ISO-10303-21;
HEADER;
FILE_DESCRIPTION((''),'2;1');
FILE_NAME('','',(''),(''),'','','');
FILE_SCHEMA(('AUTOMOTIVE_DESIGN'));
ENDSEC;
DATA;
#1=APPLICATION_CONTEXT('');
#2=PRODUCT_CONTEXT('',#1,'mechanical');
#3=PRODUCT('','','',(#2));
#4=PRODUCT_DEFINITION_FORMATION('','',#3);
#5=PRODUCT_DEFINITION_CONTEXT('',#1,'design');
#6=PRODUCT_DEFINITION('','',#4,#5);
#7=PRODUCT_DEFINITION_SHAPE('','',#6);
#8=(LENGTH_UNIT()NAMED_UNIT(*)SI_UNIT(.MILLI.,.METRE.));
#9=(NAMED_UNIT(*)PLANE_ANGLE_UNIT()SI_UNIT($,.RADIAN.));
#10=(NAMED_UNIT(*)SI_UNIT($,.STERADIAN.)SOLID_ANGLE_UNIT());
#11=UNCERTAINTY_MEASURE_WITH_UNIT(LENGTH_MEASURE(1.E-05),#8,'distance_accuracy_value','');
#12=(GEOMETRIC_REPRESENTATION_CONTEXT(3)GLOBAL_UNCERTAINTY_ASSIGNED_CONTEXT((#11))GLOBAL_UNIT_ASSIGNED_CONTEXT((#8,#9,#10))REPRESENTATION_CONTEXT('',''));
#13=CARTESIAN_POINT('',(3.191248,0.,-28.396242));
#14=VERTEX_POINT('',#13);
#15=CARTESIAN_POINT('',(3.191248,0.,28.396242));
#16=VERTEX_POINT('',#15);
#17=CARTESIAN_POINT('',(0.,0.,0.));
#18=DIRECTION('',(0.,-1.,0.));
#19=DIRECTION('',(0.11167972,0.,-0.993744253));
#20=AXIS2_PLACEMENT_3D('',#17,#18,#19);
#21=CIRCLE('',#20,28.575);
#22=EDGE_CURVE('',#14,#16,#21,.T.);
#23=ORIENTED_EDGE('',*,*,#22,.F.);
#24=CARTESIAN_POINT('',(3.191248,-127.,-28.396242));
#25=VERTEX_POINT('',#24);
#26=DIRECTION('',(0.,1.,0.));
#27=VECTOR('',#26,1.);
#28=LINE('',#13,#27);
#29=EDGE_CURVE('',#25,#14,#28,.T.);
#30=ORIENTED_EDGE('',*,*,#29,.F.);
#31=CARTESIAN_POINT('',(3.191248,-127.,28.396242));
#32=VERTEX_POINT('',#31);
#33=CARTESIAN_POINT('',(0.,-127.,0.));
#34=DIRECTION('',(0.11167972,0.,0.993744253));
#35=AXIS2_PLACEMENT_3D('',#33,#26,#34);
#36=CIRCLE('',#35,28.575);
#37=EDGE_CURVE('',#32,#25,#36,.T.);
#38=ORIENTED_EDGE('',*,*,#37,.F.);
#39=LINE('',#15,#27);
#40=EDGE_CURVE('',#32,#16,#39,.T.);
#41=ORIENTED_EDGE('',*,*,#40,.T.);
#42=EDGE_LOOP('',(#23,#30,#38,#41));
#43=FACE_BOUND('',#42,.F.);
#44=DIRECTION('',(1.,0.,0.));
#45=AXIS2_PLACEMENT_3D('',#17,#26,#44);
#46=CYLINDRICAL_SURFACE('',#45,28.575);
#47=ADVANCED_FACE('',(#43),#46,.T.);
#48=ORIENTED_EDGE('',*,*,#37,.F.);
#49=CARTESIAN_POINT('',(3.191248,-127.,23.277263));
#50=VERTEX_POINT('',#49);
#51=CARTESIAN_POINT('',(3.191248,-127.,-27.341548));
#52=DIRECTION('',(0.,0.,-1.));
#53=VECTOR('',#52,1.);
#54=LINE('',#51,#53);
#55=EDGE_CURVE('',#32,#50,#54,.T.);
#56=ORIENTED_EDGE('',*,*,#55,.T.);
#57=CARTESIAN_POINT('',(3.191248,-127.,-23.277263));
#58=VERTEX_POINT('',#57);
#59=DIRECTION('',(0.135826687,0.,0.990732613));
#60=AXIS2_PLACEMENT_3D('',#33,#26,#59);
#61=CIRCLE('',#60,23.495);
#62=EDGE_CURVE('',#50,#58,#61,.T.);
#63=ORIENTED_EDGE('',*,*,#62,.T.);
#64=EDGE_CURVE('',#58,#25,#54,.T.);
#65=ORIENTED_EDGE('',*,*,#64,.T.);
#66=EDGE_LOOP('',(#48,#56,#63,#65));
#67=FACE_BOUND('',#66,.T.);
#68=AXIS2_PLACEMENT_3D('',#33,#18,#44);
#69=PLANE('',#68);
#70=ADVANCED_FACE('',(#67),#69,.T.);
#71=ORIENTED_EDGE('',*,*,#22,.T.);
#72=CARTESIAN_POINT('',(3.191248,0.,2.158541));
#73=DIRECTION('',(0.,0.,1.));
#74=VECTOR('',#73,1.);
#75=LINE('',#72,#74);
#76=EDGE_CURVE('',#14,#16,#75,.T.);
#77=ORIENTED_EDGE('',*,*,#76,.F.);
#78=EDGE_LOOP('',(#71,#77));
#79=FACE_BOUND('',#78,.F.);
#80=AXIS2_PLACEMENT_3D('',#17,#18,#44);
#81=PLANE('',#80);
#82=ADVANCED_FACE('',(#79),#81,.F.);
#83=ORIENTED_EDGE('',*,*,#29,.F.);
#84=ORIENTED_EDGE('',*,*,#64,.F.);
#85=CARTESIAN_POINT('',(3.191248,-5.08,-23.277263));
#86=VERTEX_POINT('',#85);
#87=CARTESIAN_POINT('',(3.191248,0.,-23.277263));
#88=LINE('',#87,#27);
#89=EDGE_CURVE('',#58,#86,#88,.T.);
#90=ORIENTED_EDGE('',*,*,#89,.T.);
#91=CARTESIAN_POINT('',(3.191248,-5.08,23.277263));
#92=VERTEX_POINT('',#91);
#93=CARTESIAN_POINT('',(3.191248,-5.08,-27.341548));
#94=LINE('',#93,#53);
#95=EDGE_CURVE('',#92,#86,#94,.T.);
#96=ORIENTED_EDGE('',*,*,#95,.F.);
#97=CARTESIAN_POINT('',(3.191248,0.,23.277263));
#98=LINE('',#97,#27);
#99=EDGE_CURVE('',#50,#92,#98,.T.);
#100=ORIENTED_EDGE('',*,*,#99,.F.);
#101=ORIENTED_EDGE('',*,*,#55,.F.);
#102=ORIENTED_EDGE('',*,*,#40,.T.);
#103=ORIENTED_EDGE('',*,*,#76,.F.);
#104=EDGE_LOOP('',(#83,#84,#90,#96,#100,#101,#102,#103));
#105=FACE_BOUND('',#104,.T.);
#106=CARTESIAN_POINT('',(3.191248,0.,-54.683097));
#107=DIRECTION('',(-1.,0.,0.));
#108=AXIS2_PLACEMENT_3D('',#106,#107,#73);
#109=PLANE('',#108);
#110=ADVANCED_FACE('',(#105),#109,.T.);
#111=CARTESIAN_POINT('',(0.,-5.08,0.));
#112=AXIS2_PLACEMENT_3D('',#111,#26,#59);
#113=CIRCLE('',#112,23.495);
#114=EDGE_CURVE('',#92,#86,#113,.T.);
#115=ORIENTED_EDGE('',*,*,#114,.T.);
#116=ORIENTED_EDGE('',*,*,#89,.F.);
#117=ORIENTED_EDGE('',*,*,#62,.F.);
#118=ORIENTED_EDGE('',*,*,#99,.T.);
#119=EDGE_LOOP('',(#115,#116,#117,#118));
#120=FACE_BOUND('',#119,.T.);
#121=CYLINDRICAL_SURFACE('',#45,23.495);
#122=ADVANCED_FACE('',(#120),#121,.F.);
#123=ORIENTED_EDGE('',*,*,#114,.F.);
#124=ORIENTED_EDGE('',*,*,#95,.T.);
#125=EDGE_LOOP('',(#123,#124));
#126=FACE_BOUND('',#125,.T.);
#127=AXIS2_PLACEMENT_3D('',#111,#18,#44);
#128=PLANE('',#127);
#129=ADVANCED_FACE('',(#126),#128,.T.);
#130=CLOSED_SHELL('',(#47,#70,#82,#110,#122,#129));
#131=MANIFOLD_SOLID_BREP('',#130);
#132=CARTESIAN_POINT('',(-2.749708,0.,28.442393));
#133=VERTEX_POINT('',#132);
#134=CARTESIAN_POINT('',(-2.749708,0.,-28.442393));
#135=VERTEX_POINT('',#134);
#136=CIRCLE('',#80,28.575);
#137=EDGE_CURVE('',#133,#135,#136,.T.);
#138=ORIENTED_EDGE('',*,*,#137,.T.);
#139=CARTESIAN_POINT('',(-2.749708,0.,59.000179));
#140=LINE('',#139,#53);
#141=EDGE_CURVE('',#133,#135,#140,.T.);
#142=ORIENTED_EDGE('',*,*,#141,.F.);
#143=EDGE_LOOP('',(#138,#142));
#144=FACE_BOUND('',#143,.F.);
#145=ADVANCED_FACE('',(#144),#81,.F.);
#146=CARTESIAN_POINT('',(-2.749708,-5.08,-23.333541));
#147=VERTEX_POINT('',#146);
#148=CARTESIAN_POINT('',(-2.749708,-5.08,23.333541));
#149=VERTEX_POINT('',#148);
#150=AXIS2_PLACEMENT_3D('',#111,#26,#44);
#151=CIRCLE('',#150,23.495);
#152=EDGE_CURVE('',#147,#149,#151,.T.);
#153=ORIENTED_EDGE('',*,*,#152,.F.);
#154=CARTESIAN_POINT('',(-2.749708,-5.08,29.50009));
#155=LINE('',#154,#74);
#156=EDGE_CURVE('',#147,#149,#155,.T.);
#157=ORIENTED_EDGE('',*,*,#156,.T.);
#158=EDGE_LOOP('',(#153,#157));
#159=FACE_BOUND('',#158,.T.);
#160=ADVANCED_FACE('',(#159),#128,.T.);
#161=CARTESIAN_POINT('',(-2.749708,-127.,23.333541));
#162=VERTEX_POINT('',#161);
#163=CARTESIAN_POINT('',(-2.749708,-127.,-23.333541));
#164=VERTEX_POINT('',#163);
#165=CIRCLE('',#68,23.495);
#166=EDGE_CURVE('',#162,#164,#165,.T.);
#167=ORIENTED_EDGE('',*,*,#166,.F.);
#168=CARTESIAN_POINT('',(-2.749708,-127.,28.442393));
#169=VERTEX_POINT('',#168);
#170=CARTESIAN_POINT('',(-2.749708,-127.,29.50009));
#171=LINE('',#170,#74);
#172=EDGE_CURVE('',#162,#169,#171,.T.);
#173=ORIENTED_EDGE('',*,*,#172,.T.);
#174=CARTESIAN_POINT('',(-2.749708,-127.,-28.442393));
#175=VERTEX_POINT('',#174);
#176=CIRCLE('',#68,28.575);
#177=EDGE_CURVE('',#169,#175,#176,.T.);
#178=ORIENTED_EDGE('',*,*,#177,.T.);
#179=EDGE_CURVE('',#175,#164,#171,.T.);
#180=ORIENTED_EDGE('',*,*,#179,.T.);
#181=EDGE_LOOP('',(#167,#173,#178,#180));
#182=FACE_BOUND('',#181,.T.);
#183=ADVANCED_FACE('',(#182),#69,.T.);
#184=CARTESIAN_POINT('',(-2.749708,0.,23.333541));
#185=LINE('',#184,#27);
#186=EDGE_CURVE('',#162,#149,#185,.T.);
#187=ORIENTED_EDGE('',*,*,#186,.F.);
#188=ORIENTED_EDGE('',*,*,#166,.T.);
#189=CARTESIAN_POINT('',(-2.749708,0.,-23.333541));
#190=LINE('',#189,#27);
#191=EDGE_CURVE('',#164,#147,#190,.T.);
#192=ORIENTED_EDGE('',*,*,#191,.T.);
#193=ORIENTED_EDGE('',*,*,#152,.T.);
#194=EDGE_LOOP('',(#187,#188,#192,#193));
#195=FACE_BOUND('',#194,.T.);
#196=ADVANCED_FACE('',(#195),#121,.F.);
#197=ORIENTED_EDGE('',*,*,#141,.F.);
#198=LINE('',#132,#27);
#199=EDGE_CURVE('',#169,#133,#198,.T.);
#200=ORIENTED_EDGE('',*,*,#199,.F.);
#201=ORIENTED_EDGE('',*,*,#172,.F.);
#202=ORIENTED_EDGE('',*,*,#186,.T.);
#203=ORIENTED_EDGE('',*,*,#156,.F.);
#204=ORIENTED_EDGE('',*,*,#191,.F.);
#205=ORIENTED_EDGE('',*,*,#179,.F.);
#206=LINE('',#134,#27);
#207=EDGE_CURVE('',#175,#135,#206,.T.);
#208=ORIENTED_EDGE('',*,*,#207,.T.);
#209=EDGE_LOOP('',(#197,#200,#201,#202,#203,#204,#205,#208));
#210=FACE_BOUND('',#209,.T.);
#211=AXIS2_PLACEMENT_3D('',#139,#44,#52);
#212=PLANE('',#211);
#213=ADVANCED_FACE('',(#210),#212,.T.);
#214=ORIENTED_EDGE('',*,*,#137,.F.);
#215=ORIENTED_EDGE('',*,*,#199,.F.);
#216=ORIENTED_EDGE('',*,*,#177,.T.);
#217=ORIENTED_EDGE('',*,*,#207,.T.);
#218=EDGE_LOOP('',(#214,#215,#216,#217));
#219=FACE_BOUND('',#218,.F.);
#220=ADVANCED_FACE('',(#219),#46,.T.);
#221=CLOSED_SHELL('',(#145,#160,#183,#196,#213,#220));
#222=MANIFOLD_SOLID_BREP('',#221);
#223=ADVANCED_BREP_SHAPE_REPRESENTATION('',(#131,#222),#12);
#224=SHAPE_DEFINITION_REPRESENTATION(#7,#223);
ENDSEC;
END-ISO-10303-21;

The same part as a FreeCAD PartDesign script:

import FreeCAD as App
import Part
import Sketcher

V = App.Vector
Q = App.Units.Quantity


def faces_at(feature, points):
    """Names of the faces that lie closest to the given points."""
    faces = feature.Shape.Faces
    near = lambda p: min(range(len(faces)), key=lambda i: faces[i].distToShape(Part.Vertex(*p))[0])
    return sorted({f"Face{near(p) + 1}" for p in points})

doc = App.newDocument("Part")
body = doc.addObject("PartDesign::Body", "Body")
body.AllowCompound = True

# Sketch on XZ plane
sketch1 = body.newObject("Sketcher::SketchObject", "Sketch")
sketch1.AttachmentSupport = (doc.getObject("XZ_Plane"), [""])
sketch1.MapMode = "FlatFace"
sketch1.addGeometry(Part.Circle(V(0, 0, 0), V(0, 0, 1), 28.575), False)
sketch1.addConstraint([
    Sketcher.Constraint("Coincident", 0, 3, -1, 1),
    Sketcher.Constraint("Diameter", 0, Q("2.25 in")),
])
pad1 = body.newObject("PartDesign::Pad", "Pad")
pad1.Profile = sketch1
pad1.Length = Q("5 in")
doc.recompute()

thickness = body.newObject("PartDesign::Thickness", "Thickness")
thickness.Base = (pad1, faces_at(pad1, [(0, -127, 0)]))
thickness.Value = Q("0.2 in")
thickness.Reversed = True
thickness.Join = "Arc"

# Sketch on XZ plane
sketch2 = body.newObject("Sketcher::SketchObject", "Sketch001")
sketch2.AttachmentSupport = (doc.getObject("XZ_Plane"), [""])
sketch2.MapMode = "FlatFace"
sketch2.addGeometry([
    Part.LineSegment(V(0, -54.683097, 0), V(3.191248, -54.683097, 0)),  # 0
    Part.LineSegment(V(3.191248, -54.683097, 0), V(3.191248, 59.000179, 0)),  # 1
    Part.LineSegment(V(3.191248, 59.000179, 0), V(-2.749708, 59.000179, 0)),  # 2
    Part.LineSegment(V(-2.749708, 59.000179, 0), V(-2.749708, -54.487471, 0)),  # 3
    Part.LineSegment(V(-2.749708, -54.487471, 0), V(0, -54.683097, 0)),  # 4
], False)
sketch2.addConstraint([
    Sketcher.Constraint("Coincident", 0, 2, 1, 1),
    Sketcher.Constraint("Coincident", 1, 2, 2, 1),
    Sketcher.Constraint("Coincident", 2, 2, 3, 1),
    Sketcher.Constraint("Coincident", 3, 2, 4, 1),
    Sketcher.Constraint("Coincident", 4, 2, 0, 1),
    Sketcher.Constraint("Horizontal", 0),
    Sketcher.Constraint("Vertical", 1),
    Sketcher.Constraint("Horizontal", 2),
    Sketcher.Constraint("Vertical", 3),
    Sketcher.Constraint("PointOnObject", 4, 2, -2),
    Sketcher.Constraint("DistanceY", 3, 2, 3, 1, 113.48765),
    Sketcher.Constraint("Distance", 4, 2.756658),
    Sketcher.Constraint("DistanceX", 0, 1, 0, 2, 3.191248),
    Sketcher.Constraint("DistanceX", 2, 2, 2, 1, 5.940956),
    Sketcher.Constraint("DistanceY", -1, 1, 1, 2, 59.000179),
])
pocket1 = body.newObject("PartDesign::Pocket", "Pocket")
pocket1.Profile = sketch2
pocket1.Length = Q("24 in")
pocket1.Reversed = True

doc.recompute()
